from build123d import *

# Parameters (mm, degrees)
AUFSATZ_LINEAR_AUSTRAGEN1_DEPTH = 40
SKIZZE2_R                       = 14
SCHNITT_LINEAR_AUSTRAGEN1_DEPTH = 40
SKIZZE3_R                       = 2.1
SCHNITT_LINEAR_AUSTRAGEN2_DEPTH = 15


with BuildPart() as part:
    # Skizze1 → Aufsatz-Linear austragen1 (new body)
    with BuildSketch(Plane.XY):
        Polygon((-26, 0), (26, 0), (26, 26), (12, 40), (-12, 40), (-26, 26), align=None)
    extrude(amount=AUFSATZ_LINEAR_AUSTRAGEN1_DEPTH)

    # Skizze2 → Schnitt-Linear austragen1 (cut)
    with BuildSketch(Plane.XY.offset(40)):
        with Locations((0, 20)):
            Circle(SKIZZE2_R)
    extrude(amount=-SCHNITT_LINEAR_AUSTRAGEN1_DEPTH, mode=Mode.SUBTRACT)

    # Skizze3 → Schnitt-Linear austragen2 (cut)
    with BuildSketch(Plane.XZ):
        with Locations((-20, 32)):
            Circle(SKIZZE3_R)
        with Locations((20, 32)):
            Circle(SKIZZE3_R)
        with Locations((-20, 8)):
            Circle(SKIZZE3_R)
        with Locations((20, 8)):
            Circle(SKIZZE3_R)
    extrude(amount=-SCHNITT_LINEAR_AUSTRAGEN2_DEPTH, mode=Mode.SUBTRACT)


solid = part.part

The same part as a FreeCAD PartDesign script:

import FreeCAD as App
import Part
import Sketcher

doc = App.newDocument("Part")
body = doc.addObject("PartDesign::Body", "Body")

sketch1 = body.newObject("Sketcher::SketchObject", "Sketch")
sketch1.AttachmentSupport = (doc.getObject("XY_Plane"), [""])
sketch1.MapMode = "FlatFace"
sketch1.addGeometry([
    Part.LineSegment(App.Vector(-26, 0, 0), App.Vector(26, 0, 0)),
    Part.LineSegment(App.Vector(26, 0, 0), App.Vector(26, 26, 0)),
    Part.LineSegment(App.Vector(26, 26, 0), App.Vector(12, 40, 0)),
    Part.LineSegment(App.Vector(12, 40, 0), App.Vector(-12, 40, 0)),
    Part.LineSegment(App.Vector(-12, 40, 0), App.Vector(-26, 26, 0)),
    Part.LineSegment(App.Vector(-26, 26, 0), App.Vector(-26, 0, 0)),
], False)
sketch1.addConstraint([
    Sketcher.Constraint("Coincident", 0, 2, 1, 1),
    Sketcher.Constraint("Coincident", 1, 2, 2, 1),
    Sketcher.Constraint("Coincident", 2, 2, 3, 1),
    Sketcher.Constraint("Coincident", 3, 2, 4, 1),
    Sketcher.Constraint("Coincident", 4, 2, 5, 1),
    Sketcher.Constraint("Coincident", 5, 2, 0, 1),
    Sketcher.Constraint("Horizontal", 0),
    Sketcher.Constraint("Vertical", 1),
    Sketcher.Constraint("Horizontal", 3),
    Sketcher.Constraint("Vertical", 5),
    Sketcher.Constraint("Symmetric", 0, 2, 5, 2, -1, 1),
    Sketcher.Constraint("Perpendicular", 2, 4),
    Sketcher.Constraint("Horizontal", 1, 2, 4, 2),
    Sketcher.Constraint("Equal", 2, 4),
    Sketcher.Constraint("DistanceX", 0, 1, 0, 2, 52.0),
    Sketcher.Constraint("DistanceX", 3, 2, 3, 1, 24.0),
    Sketcher.Constraint("DistanceY", 1, 1, 1, 2, 26.0),
])
pad1 = body.newObject("PartDesign::Pad", "Pad")
pad1.Profile = sketch1
pad1.Length = 40

sketch2 = body.newObject("Sketcher::SketchObject", "Sketch001")
sketch2.AttachmentSupport = (doc.getObject("XY_Plane"), [""])
sketch2.MapMode = "FlatFace"
sketch2.AttachmentOffset = App.Placement(App.Vector(0, 0, 40), App.Rotation())
sketch2.addGeometry(Part.Circle(App.Vector(0, 20, 0), App.Vector(0, 0, 1), 14), False)
sketch2.addConstraint([
    Sketcher.Constraint("PointOnObject", 0, 3, -2),
    Sketcher.Constraint("Diameter", 0, 28.0),
    Sketcher.Constraint("DistanceY", -1, 1, 0, 3, 20.0),
])
pocket1 = body.newObject("PartDesign::Pocket", "Pocket")
pocket1.Profile = sketch2
pocket1.Length = 40

sketch3 = body.newObject("Sketcher::SketchObject", "Sketch002")
sketch3.AttachmentSupport = (doc.getObject("XZ_Plane"), [""])
sketch3.MapMode = "FlatFace"
sketch3.addGeometry([
    Part.Circle(App.Vector(-20, 32, 0), App.Vector(0, 0, 1), 2.1),
    Part.Circle(App.Vector(20, 32, 0), App.Vector(0, 0, 1), 2.1),
    Part.Circle(App.Vector(-20, 8, 0), App.Vector(0, 0, 1), 2.1),
    Part.Circle(App.Vector(20, 8, 0), App.Vector(0, 0, 1), 2.1),
], False)
sketch3.addConstraint([
    Sketcher.Constraint("Equal", 0, 1),
    Sketcher.Constraint("Equal", 1, 2),
    Sketcher.Constraint("Equal", 2, 3),
    Sketcher.Constraint("Symmetric", 0, 3, 1, 3, -2),
    Sketcher.Constraint("Symmetric", 2, 3, 3, 3, -2),
    Sketcher.Constraint("Vertical", 0, 3, 2, 3),
    Sketcher.Constraint("Diameter", 0, 4.2),
    Sketcher.Constraint("DistanceX", 0, 3, -1, 1, 20.0),
    Sketcher.Constraint("DistanceY", -1, 1, 0, 3, 32.0),
    Sketcher.Constraint("DistanceY", -1, 1, 2, 3, 8.0),
])
pocket2 = body.newObject("PartDesign::Pocket", "Pocket001")
pocket2.Profile = sketch3
pocket2.Length = 15

doc.recompute()
